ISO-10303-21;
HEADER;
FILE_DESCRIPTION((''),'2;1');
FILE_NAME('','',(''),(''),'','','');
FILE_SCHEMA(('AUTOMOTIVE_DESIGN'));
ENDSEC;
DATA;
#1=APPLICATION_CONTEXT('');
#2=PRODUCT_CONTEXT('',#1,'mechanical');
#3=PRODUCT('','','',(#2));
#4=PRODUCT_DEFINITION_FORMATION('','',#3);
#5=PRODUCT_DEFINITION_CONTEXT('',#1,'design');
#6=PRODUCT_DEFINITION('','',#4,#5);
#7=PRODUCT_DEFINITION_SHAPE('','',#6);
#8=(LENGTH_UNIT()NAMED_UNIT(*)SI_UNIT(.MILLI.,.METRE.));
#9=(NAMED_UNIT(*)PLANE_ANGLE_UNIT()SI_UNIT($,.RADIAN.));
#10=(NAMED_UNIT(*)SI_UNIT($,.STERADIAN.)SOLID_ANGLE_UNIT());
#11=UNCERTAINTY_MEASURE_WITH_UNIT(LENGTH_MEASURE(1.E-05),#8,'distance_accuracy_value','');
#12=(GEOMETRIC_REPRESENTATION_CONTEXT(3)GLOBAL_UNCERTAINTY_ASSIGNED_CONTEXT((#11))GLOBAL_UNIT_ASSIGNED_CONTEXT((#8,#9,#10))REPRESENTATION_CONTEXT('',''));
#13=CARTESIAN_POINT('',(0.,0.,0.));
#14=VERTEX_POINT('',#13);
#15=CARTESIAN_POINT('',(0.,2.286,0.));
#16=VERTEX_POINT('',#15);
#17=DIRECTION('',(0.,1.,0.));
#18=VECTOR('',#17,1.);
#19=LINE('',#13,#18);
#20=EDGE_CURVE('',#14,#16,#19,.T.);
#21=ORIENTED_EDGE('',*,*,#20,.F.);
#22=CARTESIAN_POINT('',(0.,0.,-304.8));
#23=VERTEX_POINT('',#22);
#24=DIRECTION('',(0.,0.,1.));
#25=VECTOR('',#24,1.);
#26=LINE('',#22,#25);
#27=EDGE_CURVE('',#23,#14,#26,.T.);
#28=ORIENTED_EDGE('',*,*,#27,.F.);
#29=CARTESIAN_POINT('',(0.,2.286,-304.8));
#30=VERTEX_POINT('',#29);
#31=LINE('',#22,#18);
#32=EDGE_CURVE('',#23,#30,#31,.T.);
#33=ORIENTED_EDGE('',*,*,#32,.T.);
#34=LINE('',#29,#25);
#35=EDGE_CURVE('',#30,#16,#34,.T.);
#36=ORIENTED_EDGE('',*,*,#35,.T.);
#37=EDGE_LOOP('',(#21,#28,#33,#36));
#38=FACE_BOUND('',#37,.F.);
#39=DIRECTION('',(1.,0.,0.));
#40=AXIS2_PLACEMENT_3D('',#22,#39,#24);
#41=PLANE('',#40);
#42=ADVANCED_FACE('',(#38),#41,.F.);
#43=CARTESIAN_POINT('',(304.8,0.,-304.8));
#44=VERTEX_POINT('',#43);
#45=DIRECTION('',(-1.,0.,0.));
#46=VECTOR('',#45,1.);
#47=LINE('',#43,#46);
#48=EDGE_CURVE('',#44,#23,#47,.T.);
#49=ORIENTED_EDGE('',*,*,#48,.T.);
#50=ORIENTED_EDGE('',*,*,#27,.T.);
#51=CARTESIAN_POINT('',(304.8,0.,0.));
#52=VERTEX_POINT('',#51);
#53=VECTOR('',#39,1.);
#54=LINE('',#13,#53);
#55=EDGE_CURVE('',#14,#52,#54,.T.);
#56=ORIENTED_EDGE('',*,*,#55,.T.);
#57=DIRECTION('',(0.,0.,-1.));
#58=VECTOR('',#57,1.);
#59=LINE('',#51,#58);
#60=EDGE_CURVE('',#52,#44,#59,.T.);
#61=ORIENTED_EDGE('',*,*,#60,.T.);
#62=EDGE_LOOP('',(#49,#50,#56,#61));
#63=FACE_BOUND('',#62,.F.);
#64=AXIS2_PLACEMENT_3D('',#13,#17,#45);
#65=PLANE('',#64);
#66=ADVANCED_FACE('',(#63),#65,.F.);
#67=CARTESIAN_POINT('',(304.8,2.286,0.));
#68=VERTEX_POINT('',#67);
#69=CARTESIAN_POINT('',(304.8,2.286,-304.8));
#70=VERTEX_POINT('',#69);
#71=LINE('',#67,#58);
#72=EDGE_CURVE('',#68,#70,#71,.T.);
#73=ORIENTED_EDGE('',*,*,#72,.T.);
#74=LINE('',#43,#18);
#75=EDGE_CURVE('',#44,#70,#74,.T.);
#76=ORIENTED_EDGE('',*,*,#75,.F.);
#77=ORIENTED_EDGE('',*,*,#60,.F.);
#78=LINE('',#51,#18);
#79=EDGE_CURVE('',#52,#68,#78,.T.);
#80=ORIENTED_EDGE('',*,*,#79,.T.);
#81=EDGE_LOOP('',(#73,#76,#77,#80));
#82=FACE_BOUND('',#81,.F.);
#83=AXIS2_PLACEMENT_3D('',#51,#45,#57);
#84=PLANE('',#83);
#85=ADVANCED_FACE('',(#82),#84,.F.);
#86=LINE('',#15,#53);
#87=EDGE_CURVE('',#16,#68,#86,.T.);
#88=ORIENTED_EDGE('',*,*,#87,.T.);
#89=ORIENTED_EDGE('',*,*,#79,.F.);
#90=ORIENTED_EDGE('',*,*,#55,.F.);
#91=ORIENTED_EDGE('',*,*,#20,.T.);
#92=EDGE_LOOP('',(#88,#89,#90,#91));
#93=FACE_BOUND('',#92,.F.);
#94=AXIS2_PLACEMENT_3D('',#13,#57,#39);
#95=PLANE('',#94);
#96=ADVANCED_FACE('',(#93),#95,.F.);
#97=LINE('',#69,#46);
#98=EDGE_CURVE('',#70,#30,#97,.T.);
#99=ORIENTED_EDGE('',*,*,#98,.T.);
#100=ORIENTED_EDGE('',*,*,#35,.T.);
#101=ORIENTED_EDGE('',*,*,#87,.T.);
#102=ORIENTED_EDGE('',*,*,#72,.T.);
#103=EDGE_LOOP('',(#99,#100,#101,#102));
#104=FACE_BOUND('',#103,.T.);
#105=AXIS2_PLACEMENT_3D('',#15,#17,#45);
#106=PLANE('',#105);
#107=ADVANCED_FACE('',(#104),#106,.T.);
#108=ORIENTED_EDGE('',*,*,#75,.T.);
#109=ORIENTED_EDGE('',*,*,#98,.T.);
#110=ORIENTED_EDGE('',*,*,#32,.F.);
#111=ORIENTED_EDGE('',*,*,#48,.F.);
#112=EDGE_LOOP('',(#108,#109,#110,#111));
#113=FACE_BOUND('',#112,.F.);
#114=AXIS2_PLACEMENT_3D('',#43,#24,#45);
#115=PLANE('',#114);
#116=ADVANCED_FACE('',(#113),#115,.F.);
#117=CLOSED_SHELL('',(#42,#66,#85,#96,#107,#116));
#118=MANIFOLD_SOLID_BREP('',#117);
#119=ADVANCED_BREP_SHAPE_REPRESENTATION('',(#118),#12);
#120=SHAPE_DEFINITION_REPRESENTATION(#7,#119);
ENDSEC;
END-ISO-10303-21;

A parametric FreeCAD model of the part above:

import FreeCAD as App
import Part
import Sketcher
Q = App.Units.Quantity

doc = App.newDocument("Part")
body = doc.addObject("PartDesign::Body", "Body")

sketch1 = body.newObject("Sketcher::SketchObject", "Sketch")
sketch1.AttachmentSupport = (doc.getObject("XZ_Plane"), [""])
sketch1.MapMode = "FlatFace"
sketch1.addGeometry(Part.LineSegment(App.Vector(0, -304.8, 0), App.Vector(0, 0, 0)), False)
sketch1.addGeometry(Part.LineSegment(App.Vector(0, 0, 0), App.Vector(304.8, 0, 0)), False)
sketch1.addGeometry(Part.LineSegment(App.Vector(304.8, 0, 0), App.Vector(304.8, -304.8, 0)), False)
sketch1.addGeometry(Part.LineSegment(App.Vector(304.8, -304.8, 0), App.Vector(0, -304.8, 0)), False)
sketch1.addConstraint(Sketcher.Constraint("Coincident", 0, 2, 1, 1))
sketch1.addConstraint(Sketcher.Constraint("Coincident", 1, 2, 2, 1))
sketch1.addConstraint(Sketcher.Constraint("Coincident", 2, 2, 3, 1))
sketch1.addConstraint(Sketcher.Constraint("Coincident", 3, 2, 0, 1))
sketch1.addConstraint(Sketcher.Constraint("Vertical", 0))
sketch1.addConstraint(Sketcher.Constraint("Horizontal", 1))
sketch1.addConstraint(Sketcher.Constraint("Vertical", 2))
sketch1.addConstraint(Sketcher.Constraint("Horizontal", 3))
sketch1.addConstraint(Sketcher.Constraint("Coincident", 0, 2, -1, 1))
sketch1.addConstraint(Sketcher.Constraint("Equal", 3, 0))
sketch1.addConstraint(Sketcher.Constraint("DistanceX", 1, 1, 1, 2, Q("12 in")))
pad1 = body.newObject("PartDesign::Pad", "Pad")
pad1.Profile = sketch1
pad1.Length = Q("0.09 in")
pad1.Reversed = True

doc.recompute()
